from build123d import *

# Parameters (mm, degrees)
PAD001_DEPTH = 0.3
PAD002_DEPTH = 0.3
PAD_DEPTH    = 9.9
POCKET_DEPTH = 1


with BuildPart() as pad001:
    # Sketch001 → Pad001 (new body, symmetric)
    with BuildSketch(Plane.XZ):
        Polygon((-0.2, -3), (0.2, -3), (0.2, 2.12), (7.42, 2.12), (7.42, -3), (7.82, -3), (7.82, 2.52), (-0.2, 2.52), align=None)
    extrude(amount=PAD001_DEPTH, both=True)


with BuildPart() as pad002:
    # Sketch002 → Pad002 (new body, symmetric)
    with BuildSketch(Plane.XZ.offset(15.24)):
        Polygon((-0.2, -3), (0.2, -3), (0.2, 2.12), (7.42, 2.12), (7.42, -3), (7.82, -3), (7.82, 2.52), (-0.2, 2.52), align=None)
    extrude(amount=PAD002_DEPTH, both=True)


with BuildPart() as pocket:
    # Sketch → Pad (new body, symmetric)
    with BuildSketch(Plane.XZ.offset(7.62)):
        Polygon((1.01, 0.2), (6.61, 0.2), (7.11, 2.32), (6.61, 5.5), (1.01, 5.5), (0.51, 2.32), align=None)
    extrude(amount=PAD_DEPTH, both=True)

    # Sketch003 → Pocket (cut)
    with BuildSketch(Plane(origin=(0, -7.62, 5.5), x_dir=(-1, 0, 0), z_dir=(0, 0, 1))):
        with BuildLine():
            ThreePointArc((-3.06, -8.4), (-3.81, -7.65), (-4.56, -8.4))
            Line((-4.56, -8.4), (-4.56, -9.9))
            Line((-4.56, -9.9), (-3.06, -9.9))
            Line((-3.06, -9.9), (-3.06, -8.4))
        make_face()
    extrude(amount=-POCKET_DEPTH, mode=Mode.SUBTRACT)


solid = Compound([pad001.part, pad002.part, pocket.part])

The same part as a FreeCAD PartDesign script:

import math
import FreeCAD as App
import Part
import Sketcher
from FreeCAD import Vector

doc = App.newDocument("Part")
body = doc.addObject("PartDesign::Body", "Body")

sketch1 = body.newObject("Sketcher::SketchObject", "Sketch")
sketch1.AttachmentSupport = (doc.getObject("XZ_Plane"), [""])
sketch1.MapMode = "FlatFace"
sketch1.addGeometry([
    Part.LineSegment(Vector(-0.2, -3, 0), Vector(0.2, -3, 0)),
    Part.LineSegment(Vector(0.2, -3, 0), Vector(0.2, 2.12, 0)),
    Part.LineSegment(Vector(0.2, 2.12, 0), Vector(7.42, 2.12, 0)),
    Part.LineSegment(Vector(7.42, 2.12, 0), Vector(7.42, -3, 0)),
    Part.LineSegment(Vector(7.42, -3, 0), Vector(7.82, -3, 0)),
    Part.LineSegment(Vector(7.82, -3, 0), Vector(7.82, 2.52, 0)),
    Part.LineSegment(Vector(7.82, 2.52, 0), Vector(-0.2, 2.52, 0)),
    Part.LineSegment(Vector(-0.2, 2.52, 0), Vector(-0.2, -3, 0)),
], False)
sketch1.addConstraint([
    Sketcher.Constraint("Coincident", 0, 2, 1, 1),
    Sketcher.Constraint("Coincident", 1, 2, 2, 1),
    Sketcher.Constraint("Coincident", 2, 2, 3, 1),
    Sketcher.Constraint("Coincident", 3, 2, 4, 1),
    Sketcher.Constraint("Coincident", 4, 2, 5, 1),
    Sketcher.Constraint("Coincident", 5, 2, 6, 1),
    Sketcher.Constraint("Coincident", 6, 2, 7, 1),
    Sketcher.Constraint("Coincident", 7, 2, 0, 1),
    Sketcher.Constraint("Horizontal", 0),
    Sketcher.Constraint("Vertical", 1),
    Sketcher.Constraint("Horizontal", 2),
    Sketcher.Constraint("Vertical", 3),
    Sketcher.Constraint("Horizontal", 4),
    Sketcher.Constraint("Vertical", 5),
    Sketcher.Constraint("Horizontal", 6),
    Sketcher.Constraint("Vertical", 7),
    Sketcher.Constraint("Horizontal", 0, 2, 3, 2),
    Sketcher.Constraint("Equal", 0, 4),
    Sketcher.Constraint("DistanceX", 0, 1, 0, 2, 0.4),
    Sketcher.Constraint("DistanceY", 0, 2, -1, 1, 3.0),
    Sketcher.Constraint("DistanceX", 2, 1, 2, 2, 7.22),
    Sketcher.Constraint("DistanceY", 1, 1, 1, 2, 5.12),
    Sketcher.Constraint("DistanceY", 5, 1, 5, 2, 5.52),
    Sketcher.Constraint("DistanceX", -1, 1, 0, 2, 0.2),
])
pad1 = body.newObject("PartDesign::Pad", "Pad")
pad1.Profile = sketch1
pad1.Length = 0.6
pad1.Midplane = True
body2 = doc.addObject("PartDesign::Body", "Body001")

sketch2 = body2.newObject("Sketcher::SketchObject", "Sketch001")
sketch2.AttachmentSupport = (doc.getObject("XZ_Plane001"), [""])
sketch2.MapMode = "FlatFace"
sketch2.AttachmentOffset = App.Placement(Vector(0, 0, 15.24), App.Rotation())
sketch2.addGeometry([
    Part.LineSegment(Vector(-0.2, -3, 0), Vector(0.2, -3, 0)),
    Part.LineSegment(Vector(0.2, -3, 0), Vector(0.2, 2.12, 0)),
    Part.LineSegment(Vector(0.2, 2.12, 0), Vector(7.42, 2.12, 0)),
    Part.LineSegment(Vector(7.42, 2.12, 0), Vector(7.42, -3, 0)),
    Part.LineSegment(Vector(7.42, -3, 0), Vector(7.82, -3, 0)),
    Part.LineSegment(Vector(7.82, -3, 0), Vector(7.82, 2.52, 0)),
    Part.LineSegment(Vector(7.82, 2.52, 0), Vector(-0.2, 2.52, 0)),
    Part.LineSegment(Vector(-0.2, 2.52, 0), Vector(-0.2, -3, 0)),
], False)
sketch2.addConstraint([
    Sketcher.Constraint("Coincident", 0, 2, 1, 1),
    Sketcher.Constraint("Coincident", 1, 2, 2, 1),
    Sketcher.Constraint("Coincident", 2, 2, 3, 1),
    Sketcher.Constraint("Coincident", 3, 2, 4, 1),
    Sketcher.Constraint("Coincident", 4, 2, 5, 1),
    Sketcher.Constraint("Coincident", 5, 2, 6, 1),
    Sketcher.Constraint("Coincident", 6, 2, 7, 1),
    Sketcher.Constraint("Coincident", 7, 2, 0, 1),
    Sketcher.Constraint("Horizontal", 0),
    Sketcher.Constraint("Vertical", 1),
    Sketcher.Constraint("Horizontal", 2),
    Sketcher.Constraint("Vertical", 3),
    Sketcher.Constraint("Horizontal", 4),
    Sketcher.Constraint("Vertical", 5),
    Sketcher.Constraint("Horizontal", 6),
    Sketcher.Constraint("Vertical", 7),
    Sketcher.Constraint("Horizontal", 0, 2, 3, 2),
    Sketcher.Constraint("Equal", 0, 4),
    Sketcher.Constraint("DistanceX", 0, 1, 0, 2, 0.4),
    Sketcher.Constraint("DistanceY", 0, 2, -1, 1, 3.0),
    Sketcher.Constraint("DistanceX", 2, 1, 2, 2, 7.22),
    Sketcher.Constraint("DistanceY", 1, 1, 1, 2, 5.12),
    Sketcher.Constraint("DistanceY", 5, 1, 5, 2, 5.52),
    Sketcher.Constraint("DistanceX", -1, 1, 0, 2, 0.2),
])
pad2 = body2.newObject("PartDesign::Pad", "Pad001")
pad2.Profile = sketch2
pad2.Length = 0.6
pad2.Midplane = True
body3 = doc.addObject("PartDesign::Body", "Body002")

sketch3 = body3.newObject("Sketcher::SketchObject", "Sketch002")
sketch3.AttachmentSupport = (doc.getObject("XZ_Plane002"), [""])
sketch3.MapMode = "FlatFace"
sketch3.AttachmentOffset = App.Placement(Vector(0, 0, 7.62), App.Rotation())
sketch3.addGeometry([
    Part.LineSegment(Vector(1, 0.2, 0), Vector(6.6, 0.2, 0)),
    Part.LineSegment(Vector(6.6, 0.2, 0), Vector(7.1, 2.3, 0)),
    Part.LineSegment(Vector(7.1, 2.3, 0), Vector(6.6, 5.5, 0)),
    Part.LineSegment(Vector(6.6, 5.5, 0), Vector(1, 5.5, 0)),
    Part.LineSegment(Vector(1, 5.5, 0), Vector(0.5, 2.3, 0)),
    Part.LineSegment(Vector(0.5, 2.3, 0), Vector(1, 0.2, 0)),
], False)
sketch3.addConstraint([
    Sketcher.Constraint("Coincident", 0, 2, 1, 1),
    Sketcher.Constraint("Coincident", 1, 2, 2, 1),
    Sketcher.Constraint("Coincident", 2, 2, 3, 1),
    Sketcher.Constraint("Coincident", 3, 2, 4, 1),
    Sketcher.Constraint("Coincident", 4, 2, 5, 1),
    Sketcher.Constraint("Coincident", 5, 2, 0, 1),
    Sketcher.Constraint("Horizontal", 0),
    Sketcher.Constraint("Horizontal", 3),
    Sketcher.Constraint("Horizontal", 1, 2, 4, 2),
    Sketcher.Constraint("Vertical", 0, 2, 2, 2),
    Sketcher.Constraint("Vertical", 3, 2, 5, 2),
    Sketcher.Constraint("Equal", 2, 4),
    Sketcher.Constraint("DistanceX", 0, 1, 0, 2, 5.6),
    Sketcher.Constraint("DistanceY", -1, 1, 0, 2, 0.2),
    Sketcher.Constraint("DistanceY", -1, 1, 2, 2, 5.5),
    Sketcher.Constraint("DistanceX", 0, 2, 1, 2, 0.5),
    Sketcher.Constraint("DistanceX", -1, 1, 0, 2, 6.61),
    Sketcher.Constraint("DistanceY", -1, 1, 1, 2, 2.32),
])
pad3 = body3.newObject("PartDesign::Pad", "Pad002")
pad3.Profile = sketch3
pad3.Length = 19.8
pad3.Midplane = True

sketch4 = body3.newObject("Sketcher::SketchObject", "Sketch003")
sketch4.AttachmentSupport = (doc.getObject("XY_Plane002"), [""])
sketch4.MapMode = "FlatFace"
sketch4.AttachmentOffset = App.Placement(Vector(0, 0, 5.5), App.Rotation())
sketch4.addGeometry([
    Part.ArcOfCircle(Part.Circle(Vector(3.8, 0.8, 0), Vector(0, 0, 1), 0.8), math.radians(180), math.radians(360)),
    Part.LineSegment(Vector(4.6, 0.8, 0), Vector(4.6, 2.3, 0)),
    Part.LineSegment(Vector(4.6, 2.3, 0), Vector(3.1, 2.3, 0)),
    Part.LineSegment(Vector(3.1, 2.3, 0), Vector(3.1, 0.8, 0)),
], False)
sketch4.addConstraint([
    Sketcher.Constraint("Tangent", 0, 2, 1, 1),
    Sketcher.Constraint("Coincident", 1, 2, 2, 1),
    Sketcher.Constraint("Coincident", 2, 2, 3, 1),
    Sketcher.Constraint("Tangent", 3, 2, 0, 1),
    Sketcher.Constraint("Vertical", 1),
    Sketcher.Constraint("Horizontal", 2),
    Sketcher.Constraint("Vertical", 3),
    Sketcher.Constraint("Equal", 2, 1),
    Sketcher.Constraint("Radius", 0, 0.75),
    Sketcher.Constraint("DistanceX", -1, 1, 0, 3, 3.81),
    Sketcher.Constraint("DistanceY", -1, 1, 0, 3, 0.78),
])
pocket1 = body3.newObject("PartDesign::Pocket", "Pocket")
pocket1.Profile = sketch4
pocket1.Length = 1

doc.recompute()
